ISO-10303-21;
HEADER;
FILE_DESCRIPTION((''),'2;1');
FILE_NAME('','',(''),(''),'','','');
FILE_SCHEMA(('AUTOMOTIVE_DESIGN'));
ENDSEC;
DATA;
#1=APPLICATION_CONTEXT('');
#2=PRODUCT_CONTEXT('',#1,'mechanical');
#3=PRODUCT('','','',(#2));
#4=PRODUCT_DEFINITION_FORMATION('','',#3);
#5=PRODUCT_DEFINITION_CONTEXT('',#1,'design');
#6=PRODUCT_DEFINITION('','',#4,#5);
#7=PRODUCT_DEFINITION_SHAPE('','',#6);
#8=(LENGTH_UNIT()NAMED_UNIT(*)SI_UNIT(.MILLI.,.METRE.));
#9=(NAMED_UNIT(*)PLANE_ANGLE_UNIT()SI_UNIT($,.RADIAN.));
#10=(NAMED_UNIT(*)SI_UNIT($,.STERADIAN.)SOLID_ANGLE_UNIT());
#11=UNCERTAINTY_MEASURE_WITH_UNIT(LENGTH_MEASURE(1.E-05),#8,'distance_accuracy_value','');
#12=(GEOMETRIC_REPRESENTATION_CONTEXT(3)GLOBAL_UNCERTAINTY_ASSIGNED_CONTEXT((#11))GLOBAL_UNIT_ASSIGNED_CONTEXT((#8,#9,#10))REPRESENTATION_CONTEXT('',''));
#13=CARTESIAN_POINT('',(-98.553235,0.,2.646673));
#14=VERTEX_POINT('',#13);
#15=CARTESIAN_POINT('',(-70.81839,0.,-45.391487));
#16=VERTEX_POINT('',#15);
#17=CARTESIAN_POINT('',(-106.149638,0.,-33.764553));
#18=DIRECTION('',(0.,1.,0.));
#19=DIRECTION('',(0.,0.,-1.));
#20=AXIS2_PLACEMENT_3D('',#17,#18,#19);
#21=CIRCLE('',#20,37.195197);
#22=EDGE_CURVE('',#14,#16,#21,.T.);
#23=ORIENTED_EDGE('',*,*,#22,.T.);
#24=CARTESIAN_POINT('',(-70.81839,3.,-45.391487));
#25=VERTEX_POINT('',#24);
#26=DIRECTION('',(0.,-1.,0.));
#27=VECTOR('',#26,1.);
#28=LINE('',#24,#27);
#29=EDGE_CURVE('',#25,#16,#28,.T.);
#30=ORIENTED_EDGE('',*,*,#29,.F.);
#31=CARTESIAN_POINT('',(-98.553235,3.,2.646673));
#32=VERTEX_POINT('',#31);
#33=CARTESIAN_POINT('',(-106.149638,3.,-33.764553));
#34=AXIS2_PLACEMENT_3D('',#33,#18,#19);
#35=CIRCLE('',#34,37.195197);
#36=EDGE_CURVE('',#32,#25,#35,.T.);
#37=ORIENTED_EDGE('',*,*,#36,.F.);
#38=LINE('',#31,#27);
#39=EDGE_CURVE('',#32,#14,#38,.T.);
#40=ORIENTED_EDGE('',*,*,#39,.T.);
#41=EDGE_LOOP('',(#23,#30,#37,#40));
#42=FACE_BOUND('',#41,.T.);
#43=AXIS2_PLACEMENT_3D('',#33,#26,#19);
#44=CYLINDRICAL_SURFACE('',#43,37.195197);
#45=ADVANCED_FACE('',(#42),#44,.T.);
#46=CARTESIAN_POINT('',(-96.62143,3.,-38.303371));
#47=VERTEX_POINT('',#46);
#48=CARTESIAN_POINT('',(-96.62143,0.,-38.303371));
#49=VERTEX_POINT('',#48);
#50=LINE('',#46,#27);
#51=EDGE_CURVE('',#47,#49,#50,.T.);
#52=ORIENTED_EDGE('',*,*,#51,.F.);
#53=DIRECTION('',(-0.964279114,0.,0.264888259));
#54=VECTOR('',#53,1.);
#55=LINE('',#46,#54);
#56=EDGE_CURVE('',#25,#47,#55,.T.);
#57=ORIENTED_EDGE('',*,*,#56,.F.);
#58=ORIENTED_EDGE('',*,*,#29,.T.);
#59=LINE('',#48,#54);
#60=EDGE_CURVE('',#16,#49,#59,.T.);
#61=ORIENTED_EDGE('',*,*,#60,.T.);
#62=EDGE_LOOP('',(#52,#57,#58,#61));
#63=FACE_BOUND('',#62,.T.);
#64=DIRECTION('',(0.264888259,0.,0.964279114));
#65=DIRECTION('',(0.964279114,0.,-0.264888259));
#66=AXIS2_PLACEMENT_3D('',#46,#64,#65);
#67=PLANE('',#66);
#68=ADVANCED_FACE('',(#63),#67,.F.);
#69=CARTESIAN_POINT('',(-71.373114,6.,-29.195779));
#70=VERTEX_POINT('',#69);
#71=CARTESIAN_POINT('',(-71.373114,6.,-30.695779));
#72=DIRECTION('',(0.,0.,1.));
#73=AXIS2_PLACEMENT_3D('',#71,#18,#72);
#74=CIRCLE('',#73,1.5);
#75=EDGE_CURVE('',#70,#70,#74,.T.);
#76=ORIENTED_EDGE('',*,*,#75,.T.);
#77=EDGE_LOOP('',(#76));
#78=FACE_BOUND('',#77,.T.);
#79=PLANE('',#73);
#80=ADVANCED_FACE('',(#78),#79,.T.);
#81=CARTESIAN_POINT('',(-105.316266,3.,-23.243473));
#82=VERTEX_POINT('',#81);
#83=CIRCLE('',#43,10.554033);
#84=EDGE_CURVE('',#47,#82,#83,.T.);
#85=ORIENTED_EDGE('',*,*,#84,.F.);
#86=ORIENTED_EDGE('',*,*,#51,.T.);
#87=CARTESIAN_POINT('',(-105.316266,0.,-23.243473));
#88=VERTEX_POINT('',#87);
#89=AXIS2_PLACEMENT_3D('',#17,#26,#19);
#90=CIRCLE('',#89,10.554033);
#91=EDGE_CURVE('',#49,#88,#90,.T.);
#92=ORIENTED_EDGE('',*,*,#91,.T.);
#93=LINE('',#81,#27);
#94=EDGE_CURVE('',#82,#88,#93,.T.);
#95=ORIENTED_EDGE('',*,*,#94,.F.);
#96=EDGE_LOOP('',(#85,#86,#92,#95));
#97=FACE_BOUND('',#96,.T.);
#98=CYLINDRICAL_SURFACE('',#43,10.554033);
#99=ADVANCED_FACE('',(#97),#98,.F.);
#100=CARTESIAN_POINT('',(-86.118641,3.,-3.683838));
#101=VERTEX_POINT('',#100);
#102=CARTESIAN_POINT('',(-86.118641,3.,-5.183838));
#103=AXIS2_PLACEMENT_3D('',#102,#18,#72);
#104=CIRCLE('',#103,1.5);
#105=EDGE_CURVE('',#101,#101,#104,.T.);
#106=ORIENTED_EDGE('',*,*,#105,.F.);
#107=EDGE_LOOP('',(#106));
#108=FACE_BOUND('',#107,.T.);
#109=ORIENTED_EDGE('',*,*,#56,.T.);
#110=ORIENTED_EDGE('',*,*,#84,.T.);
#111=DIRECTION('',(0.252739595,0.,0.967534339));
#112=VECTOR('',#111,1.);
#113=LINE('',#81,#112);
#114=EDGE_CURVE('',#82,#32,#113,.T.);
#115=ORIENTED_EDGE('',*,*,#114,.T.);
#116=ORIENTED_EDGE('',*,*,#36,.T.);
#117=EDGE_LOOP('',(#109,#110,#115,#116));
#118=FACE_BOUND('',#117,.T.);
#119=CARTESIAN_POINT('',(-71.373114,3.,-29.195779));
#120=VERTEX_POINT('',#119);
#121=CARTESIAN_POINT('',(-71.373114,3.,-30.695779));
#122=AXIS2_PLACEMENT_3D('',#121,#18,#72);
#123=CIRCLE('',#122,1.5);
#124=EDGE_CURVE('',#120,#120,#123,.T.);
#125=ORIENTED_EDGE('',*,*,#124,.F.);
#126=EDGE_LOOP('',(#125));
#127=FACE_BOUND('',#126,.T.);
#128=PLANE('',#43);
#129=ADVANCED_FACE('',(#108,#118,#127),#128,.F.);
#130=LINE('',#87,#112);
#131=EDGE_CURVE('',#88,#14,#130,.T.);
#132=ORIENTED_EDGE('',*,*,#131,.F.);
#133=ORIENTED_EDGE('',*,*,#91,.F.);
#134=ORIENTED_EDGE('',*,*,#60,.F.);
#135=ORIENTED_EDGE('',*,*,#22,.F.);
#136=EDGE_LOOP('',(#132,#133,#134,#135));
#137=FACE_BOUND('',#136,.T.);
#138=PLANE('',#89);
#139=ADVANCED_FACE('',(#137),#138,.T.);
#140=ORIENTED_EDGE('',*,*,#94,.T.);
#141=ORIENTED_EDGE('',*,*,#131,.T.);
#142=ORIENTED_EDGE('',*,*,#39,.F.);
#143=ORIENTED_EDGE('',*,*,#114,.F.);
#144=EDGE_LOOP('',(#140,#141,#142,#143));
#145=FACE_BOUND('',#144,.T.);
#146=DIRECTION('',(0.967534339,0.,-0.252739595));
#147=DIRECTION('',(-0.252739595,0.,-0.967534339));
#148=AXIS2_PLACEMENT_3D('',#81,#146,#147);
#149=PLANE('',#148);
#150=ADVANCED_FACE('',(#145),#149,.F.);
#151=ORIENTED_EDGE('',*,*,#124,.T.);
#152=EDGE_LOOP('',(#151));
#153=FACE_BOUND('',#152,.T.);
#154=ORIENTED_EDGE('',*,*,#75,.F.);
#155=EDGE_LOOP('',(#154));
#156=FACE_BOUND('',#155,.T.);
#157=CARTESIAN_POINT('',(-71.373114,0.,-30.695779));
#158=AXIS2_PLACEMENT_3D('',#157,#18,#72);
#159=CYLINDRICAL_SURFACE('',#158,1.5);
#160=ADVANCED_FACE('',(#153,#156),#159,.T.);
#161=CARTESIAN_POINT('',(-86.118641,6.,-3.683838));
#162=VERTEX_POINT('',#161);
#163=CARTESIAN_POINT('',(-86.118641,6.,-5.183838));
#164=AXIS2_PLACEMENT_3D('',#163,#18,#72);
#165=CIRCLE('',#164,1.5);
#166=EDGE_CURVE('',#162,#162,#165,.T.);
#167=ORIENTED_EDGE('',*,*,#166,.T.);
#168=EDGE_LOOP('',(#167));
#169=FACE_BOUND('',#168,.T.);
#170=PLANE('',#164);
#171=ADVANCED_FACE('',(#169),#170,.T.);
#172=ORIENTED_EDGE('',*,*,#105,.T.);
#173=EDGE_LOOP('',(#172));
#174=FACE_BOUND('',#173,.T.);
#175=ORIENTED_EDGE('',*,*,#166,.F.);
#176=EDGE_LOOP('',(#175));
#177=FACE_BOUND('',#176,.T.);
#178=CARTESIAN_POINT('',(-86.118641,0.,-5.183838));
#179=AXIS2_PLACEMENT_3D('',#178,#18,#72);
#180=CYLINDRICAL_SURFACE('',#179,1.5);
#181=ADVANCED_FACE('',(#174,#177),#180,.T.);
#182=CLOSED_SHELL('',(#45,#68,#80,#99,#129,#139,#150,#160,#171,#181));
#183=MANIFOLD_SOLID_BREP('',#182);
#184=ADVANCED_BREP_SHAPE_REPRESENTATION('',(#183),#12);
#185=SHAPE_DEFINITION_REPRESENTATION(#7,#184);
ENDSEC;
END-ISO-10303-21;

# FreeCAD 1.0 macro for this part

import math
import FreeCAD as App
import Part
import Sketcher
Q = App.Units.Quantity

doc = App.newDocument("Part")
body = doc.addObject("PartDesign::Body", "Body")

# Sketch on XZ plane
sketch1 = body.newObject("Sketcher::SketchObject", "Sketch")
sketch1.AttachmentSupport = (doc.getObject("XZ_Plane"), [""])
sketch1.MapMode = "FlatFace"
sketch1.addGeometry(Part.LineSegment(App.Vector(-70.8, -45.4, 0), App.Vector(-96.6, -38.3, 0)), False)
sketch1.addGeometry(Part.ArcOfCircle(Part.Circle(App.Vector(-106.1, -33.8, 0), App.Vector(0, 0, 1), 10.6), math.radians(-25), math.radians(85)), False)
sketch1.addGeometry(Part.LineSegment(App.Vector(-105.3, -23.2, 0), App.Vector(-98.6, 2.6, 0)), False)
sketch1.addGeometry(Part.ArcOfCircle(Part.Circle(App.Vector(-106.1, -33.8, 0), App.Vector(0, 0, 1), 37.2), math.radians(-18), math.radians(78)), False)
sketch1.addGeometry(Part.Circle(App.Vector(-86.1, -5.2, 0), App.Vector(0, 0, 1), 1.5), False)
sketch1.addGeometry(Part.Circle(App.Vector(-71.4, -30.7, 0), App.Vector(0, 0, 1), 1.5), False)
sketch1.addConstraint(Sketcher.Constraint("Coincident", 0, 2, 1, 1))
sketch1.addConstraint(Sketcher.Constraint("Coincident", 1, 2, 2, 1))
sketch1.addConstraint(Sketcher.Constraint("Coincident", 2, 2, 3, 2))
sketch1.addConstraint(Sketcher.Constraint("Coincident", 3, 1, 0, 1))
sketch1.addConstraint(Sketcher.Constraint("Coincident", 3, 3, 1, 3))
sketch1.addConstraint(Sketcher.Constraint("Equal", 4, 5))
sketch1.addConstraint(Sketcher.Constraint("Equal", 0, 2))
sketch1.addConstraint(Sketcher.Constraint("Diameter", 4, Q("3 mm")))
sketch1.addConstraint(Sketcher.Constraint("Radius", 1, Q("10.554033 mm")))
sketch1.addConstraint(Sketcher.Constraint("Radius", 3, Q("37.195197 mm")))
sketch1.addConstraint(Sketcher.Constraint("Distance", 0, Q("26.758891 mm")))
sketch1.addConstraint(Sketcher.Constraint("DistanceX", 1, 3, -1, 1, Q("106.149638 mm")))
sketch1.addConstraint(Sketcher.Constraint("DistanceX", 4, 3, -1, 1, Q("86.118641 mm")))
sketch1.addConstraint(Sketcher.Constraint("DistanceY", 4, 3, -1, 1, Q("5.183838 mm")))
sketch1.addConstraint(Sketcher.Constraint("DistanceY", 5, 3, -1, 1, Q("30.695779 mm")))
sketch1.addConstraint(Sketcher.Constraint("DistanceX", 0, 2, -1, 1, Q("96.62143 mm")))
sketch1.addConstraint(Sketcher.Constraint("DistanceY", 0, 2, -1, 1, Q("38.303371 mm")))
sketch1.addConstraint(Sketcher.Constraint("DistanceY", 3, 3, 1, 2, Q("10.521079 mm")))
sketch1.addConstraint(Sketcher.Constraint("DistanceX", 5, 3, -1, 1, Q("71.373114 mm")))
pad1 = body.newObject("PartDesign::Pad", "Pad")
pad1.Profile = sketch1
pad1.Length = 3
pad1.Reversed = True

# Sketch on XZ plane
sketch2 = body.newObject("Sketcher::SketchObject", "Sketch001")
sketch2.AttachmentSupport = (doc.getObject("XZ_Plane"), [""])
sketch2.MapMode = "FlatFace"
sketch2.AttachmentOffset = App.Placement(App.Vector(0, 0, -3), App.Rotation())
sketch2.addGeometry(Part.Circle(App.Vector(-71.4, -30.7, 0), App.Vector(0, 0, 1), 1.5), False)
sketch2.addGeometry(Part.Circle(App.Vector(-86.1, -5.2, 0), App.Vector(0, 0, 1), 1.5), False)
sketch2.addConstraint(Sketcher.Constraint("Equal", 0, 1))
sketch2.addConstraint(Sketcher.Constraint("Diameter", 0, Q("3 mm")))
sketch2.addConstraint(Sketcher.Constraint("DistanceY", 0, 3, -1, 1, Q("30.695779 mm")))
sketch2.addConstraint(Sketcher.Constraint("DistanceX", 1, 3, -1, 1, Q("86.118641 mm")))
sketch2.addConstraint(Sketcher.Constraint("DistanceY", 1, 3, -1, 1, Q("5.183838 mm")))
sketch2.addConstraint(Sketcher.Constraint("DistanceX", 0, 3, -1, 1, Q("71.373114 mm")))
pad2 = body.newObject("PartDesign::Pad", "Pad001")
pad2.Profile = sketch2
pad2.Type = "TwoLengths"
pad2.Length = 3
pad2.Length2 = 3
pad2.Reversed = True

doc.recompute()
